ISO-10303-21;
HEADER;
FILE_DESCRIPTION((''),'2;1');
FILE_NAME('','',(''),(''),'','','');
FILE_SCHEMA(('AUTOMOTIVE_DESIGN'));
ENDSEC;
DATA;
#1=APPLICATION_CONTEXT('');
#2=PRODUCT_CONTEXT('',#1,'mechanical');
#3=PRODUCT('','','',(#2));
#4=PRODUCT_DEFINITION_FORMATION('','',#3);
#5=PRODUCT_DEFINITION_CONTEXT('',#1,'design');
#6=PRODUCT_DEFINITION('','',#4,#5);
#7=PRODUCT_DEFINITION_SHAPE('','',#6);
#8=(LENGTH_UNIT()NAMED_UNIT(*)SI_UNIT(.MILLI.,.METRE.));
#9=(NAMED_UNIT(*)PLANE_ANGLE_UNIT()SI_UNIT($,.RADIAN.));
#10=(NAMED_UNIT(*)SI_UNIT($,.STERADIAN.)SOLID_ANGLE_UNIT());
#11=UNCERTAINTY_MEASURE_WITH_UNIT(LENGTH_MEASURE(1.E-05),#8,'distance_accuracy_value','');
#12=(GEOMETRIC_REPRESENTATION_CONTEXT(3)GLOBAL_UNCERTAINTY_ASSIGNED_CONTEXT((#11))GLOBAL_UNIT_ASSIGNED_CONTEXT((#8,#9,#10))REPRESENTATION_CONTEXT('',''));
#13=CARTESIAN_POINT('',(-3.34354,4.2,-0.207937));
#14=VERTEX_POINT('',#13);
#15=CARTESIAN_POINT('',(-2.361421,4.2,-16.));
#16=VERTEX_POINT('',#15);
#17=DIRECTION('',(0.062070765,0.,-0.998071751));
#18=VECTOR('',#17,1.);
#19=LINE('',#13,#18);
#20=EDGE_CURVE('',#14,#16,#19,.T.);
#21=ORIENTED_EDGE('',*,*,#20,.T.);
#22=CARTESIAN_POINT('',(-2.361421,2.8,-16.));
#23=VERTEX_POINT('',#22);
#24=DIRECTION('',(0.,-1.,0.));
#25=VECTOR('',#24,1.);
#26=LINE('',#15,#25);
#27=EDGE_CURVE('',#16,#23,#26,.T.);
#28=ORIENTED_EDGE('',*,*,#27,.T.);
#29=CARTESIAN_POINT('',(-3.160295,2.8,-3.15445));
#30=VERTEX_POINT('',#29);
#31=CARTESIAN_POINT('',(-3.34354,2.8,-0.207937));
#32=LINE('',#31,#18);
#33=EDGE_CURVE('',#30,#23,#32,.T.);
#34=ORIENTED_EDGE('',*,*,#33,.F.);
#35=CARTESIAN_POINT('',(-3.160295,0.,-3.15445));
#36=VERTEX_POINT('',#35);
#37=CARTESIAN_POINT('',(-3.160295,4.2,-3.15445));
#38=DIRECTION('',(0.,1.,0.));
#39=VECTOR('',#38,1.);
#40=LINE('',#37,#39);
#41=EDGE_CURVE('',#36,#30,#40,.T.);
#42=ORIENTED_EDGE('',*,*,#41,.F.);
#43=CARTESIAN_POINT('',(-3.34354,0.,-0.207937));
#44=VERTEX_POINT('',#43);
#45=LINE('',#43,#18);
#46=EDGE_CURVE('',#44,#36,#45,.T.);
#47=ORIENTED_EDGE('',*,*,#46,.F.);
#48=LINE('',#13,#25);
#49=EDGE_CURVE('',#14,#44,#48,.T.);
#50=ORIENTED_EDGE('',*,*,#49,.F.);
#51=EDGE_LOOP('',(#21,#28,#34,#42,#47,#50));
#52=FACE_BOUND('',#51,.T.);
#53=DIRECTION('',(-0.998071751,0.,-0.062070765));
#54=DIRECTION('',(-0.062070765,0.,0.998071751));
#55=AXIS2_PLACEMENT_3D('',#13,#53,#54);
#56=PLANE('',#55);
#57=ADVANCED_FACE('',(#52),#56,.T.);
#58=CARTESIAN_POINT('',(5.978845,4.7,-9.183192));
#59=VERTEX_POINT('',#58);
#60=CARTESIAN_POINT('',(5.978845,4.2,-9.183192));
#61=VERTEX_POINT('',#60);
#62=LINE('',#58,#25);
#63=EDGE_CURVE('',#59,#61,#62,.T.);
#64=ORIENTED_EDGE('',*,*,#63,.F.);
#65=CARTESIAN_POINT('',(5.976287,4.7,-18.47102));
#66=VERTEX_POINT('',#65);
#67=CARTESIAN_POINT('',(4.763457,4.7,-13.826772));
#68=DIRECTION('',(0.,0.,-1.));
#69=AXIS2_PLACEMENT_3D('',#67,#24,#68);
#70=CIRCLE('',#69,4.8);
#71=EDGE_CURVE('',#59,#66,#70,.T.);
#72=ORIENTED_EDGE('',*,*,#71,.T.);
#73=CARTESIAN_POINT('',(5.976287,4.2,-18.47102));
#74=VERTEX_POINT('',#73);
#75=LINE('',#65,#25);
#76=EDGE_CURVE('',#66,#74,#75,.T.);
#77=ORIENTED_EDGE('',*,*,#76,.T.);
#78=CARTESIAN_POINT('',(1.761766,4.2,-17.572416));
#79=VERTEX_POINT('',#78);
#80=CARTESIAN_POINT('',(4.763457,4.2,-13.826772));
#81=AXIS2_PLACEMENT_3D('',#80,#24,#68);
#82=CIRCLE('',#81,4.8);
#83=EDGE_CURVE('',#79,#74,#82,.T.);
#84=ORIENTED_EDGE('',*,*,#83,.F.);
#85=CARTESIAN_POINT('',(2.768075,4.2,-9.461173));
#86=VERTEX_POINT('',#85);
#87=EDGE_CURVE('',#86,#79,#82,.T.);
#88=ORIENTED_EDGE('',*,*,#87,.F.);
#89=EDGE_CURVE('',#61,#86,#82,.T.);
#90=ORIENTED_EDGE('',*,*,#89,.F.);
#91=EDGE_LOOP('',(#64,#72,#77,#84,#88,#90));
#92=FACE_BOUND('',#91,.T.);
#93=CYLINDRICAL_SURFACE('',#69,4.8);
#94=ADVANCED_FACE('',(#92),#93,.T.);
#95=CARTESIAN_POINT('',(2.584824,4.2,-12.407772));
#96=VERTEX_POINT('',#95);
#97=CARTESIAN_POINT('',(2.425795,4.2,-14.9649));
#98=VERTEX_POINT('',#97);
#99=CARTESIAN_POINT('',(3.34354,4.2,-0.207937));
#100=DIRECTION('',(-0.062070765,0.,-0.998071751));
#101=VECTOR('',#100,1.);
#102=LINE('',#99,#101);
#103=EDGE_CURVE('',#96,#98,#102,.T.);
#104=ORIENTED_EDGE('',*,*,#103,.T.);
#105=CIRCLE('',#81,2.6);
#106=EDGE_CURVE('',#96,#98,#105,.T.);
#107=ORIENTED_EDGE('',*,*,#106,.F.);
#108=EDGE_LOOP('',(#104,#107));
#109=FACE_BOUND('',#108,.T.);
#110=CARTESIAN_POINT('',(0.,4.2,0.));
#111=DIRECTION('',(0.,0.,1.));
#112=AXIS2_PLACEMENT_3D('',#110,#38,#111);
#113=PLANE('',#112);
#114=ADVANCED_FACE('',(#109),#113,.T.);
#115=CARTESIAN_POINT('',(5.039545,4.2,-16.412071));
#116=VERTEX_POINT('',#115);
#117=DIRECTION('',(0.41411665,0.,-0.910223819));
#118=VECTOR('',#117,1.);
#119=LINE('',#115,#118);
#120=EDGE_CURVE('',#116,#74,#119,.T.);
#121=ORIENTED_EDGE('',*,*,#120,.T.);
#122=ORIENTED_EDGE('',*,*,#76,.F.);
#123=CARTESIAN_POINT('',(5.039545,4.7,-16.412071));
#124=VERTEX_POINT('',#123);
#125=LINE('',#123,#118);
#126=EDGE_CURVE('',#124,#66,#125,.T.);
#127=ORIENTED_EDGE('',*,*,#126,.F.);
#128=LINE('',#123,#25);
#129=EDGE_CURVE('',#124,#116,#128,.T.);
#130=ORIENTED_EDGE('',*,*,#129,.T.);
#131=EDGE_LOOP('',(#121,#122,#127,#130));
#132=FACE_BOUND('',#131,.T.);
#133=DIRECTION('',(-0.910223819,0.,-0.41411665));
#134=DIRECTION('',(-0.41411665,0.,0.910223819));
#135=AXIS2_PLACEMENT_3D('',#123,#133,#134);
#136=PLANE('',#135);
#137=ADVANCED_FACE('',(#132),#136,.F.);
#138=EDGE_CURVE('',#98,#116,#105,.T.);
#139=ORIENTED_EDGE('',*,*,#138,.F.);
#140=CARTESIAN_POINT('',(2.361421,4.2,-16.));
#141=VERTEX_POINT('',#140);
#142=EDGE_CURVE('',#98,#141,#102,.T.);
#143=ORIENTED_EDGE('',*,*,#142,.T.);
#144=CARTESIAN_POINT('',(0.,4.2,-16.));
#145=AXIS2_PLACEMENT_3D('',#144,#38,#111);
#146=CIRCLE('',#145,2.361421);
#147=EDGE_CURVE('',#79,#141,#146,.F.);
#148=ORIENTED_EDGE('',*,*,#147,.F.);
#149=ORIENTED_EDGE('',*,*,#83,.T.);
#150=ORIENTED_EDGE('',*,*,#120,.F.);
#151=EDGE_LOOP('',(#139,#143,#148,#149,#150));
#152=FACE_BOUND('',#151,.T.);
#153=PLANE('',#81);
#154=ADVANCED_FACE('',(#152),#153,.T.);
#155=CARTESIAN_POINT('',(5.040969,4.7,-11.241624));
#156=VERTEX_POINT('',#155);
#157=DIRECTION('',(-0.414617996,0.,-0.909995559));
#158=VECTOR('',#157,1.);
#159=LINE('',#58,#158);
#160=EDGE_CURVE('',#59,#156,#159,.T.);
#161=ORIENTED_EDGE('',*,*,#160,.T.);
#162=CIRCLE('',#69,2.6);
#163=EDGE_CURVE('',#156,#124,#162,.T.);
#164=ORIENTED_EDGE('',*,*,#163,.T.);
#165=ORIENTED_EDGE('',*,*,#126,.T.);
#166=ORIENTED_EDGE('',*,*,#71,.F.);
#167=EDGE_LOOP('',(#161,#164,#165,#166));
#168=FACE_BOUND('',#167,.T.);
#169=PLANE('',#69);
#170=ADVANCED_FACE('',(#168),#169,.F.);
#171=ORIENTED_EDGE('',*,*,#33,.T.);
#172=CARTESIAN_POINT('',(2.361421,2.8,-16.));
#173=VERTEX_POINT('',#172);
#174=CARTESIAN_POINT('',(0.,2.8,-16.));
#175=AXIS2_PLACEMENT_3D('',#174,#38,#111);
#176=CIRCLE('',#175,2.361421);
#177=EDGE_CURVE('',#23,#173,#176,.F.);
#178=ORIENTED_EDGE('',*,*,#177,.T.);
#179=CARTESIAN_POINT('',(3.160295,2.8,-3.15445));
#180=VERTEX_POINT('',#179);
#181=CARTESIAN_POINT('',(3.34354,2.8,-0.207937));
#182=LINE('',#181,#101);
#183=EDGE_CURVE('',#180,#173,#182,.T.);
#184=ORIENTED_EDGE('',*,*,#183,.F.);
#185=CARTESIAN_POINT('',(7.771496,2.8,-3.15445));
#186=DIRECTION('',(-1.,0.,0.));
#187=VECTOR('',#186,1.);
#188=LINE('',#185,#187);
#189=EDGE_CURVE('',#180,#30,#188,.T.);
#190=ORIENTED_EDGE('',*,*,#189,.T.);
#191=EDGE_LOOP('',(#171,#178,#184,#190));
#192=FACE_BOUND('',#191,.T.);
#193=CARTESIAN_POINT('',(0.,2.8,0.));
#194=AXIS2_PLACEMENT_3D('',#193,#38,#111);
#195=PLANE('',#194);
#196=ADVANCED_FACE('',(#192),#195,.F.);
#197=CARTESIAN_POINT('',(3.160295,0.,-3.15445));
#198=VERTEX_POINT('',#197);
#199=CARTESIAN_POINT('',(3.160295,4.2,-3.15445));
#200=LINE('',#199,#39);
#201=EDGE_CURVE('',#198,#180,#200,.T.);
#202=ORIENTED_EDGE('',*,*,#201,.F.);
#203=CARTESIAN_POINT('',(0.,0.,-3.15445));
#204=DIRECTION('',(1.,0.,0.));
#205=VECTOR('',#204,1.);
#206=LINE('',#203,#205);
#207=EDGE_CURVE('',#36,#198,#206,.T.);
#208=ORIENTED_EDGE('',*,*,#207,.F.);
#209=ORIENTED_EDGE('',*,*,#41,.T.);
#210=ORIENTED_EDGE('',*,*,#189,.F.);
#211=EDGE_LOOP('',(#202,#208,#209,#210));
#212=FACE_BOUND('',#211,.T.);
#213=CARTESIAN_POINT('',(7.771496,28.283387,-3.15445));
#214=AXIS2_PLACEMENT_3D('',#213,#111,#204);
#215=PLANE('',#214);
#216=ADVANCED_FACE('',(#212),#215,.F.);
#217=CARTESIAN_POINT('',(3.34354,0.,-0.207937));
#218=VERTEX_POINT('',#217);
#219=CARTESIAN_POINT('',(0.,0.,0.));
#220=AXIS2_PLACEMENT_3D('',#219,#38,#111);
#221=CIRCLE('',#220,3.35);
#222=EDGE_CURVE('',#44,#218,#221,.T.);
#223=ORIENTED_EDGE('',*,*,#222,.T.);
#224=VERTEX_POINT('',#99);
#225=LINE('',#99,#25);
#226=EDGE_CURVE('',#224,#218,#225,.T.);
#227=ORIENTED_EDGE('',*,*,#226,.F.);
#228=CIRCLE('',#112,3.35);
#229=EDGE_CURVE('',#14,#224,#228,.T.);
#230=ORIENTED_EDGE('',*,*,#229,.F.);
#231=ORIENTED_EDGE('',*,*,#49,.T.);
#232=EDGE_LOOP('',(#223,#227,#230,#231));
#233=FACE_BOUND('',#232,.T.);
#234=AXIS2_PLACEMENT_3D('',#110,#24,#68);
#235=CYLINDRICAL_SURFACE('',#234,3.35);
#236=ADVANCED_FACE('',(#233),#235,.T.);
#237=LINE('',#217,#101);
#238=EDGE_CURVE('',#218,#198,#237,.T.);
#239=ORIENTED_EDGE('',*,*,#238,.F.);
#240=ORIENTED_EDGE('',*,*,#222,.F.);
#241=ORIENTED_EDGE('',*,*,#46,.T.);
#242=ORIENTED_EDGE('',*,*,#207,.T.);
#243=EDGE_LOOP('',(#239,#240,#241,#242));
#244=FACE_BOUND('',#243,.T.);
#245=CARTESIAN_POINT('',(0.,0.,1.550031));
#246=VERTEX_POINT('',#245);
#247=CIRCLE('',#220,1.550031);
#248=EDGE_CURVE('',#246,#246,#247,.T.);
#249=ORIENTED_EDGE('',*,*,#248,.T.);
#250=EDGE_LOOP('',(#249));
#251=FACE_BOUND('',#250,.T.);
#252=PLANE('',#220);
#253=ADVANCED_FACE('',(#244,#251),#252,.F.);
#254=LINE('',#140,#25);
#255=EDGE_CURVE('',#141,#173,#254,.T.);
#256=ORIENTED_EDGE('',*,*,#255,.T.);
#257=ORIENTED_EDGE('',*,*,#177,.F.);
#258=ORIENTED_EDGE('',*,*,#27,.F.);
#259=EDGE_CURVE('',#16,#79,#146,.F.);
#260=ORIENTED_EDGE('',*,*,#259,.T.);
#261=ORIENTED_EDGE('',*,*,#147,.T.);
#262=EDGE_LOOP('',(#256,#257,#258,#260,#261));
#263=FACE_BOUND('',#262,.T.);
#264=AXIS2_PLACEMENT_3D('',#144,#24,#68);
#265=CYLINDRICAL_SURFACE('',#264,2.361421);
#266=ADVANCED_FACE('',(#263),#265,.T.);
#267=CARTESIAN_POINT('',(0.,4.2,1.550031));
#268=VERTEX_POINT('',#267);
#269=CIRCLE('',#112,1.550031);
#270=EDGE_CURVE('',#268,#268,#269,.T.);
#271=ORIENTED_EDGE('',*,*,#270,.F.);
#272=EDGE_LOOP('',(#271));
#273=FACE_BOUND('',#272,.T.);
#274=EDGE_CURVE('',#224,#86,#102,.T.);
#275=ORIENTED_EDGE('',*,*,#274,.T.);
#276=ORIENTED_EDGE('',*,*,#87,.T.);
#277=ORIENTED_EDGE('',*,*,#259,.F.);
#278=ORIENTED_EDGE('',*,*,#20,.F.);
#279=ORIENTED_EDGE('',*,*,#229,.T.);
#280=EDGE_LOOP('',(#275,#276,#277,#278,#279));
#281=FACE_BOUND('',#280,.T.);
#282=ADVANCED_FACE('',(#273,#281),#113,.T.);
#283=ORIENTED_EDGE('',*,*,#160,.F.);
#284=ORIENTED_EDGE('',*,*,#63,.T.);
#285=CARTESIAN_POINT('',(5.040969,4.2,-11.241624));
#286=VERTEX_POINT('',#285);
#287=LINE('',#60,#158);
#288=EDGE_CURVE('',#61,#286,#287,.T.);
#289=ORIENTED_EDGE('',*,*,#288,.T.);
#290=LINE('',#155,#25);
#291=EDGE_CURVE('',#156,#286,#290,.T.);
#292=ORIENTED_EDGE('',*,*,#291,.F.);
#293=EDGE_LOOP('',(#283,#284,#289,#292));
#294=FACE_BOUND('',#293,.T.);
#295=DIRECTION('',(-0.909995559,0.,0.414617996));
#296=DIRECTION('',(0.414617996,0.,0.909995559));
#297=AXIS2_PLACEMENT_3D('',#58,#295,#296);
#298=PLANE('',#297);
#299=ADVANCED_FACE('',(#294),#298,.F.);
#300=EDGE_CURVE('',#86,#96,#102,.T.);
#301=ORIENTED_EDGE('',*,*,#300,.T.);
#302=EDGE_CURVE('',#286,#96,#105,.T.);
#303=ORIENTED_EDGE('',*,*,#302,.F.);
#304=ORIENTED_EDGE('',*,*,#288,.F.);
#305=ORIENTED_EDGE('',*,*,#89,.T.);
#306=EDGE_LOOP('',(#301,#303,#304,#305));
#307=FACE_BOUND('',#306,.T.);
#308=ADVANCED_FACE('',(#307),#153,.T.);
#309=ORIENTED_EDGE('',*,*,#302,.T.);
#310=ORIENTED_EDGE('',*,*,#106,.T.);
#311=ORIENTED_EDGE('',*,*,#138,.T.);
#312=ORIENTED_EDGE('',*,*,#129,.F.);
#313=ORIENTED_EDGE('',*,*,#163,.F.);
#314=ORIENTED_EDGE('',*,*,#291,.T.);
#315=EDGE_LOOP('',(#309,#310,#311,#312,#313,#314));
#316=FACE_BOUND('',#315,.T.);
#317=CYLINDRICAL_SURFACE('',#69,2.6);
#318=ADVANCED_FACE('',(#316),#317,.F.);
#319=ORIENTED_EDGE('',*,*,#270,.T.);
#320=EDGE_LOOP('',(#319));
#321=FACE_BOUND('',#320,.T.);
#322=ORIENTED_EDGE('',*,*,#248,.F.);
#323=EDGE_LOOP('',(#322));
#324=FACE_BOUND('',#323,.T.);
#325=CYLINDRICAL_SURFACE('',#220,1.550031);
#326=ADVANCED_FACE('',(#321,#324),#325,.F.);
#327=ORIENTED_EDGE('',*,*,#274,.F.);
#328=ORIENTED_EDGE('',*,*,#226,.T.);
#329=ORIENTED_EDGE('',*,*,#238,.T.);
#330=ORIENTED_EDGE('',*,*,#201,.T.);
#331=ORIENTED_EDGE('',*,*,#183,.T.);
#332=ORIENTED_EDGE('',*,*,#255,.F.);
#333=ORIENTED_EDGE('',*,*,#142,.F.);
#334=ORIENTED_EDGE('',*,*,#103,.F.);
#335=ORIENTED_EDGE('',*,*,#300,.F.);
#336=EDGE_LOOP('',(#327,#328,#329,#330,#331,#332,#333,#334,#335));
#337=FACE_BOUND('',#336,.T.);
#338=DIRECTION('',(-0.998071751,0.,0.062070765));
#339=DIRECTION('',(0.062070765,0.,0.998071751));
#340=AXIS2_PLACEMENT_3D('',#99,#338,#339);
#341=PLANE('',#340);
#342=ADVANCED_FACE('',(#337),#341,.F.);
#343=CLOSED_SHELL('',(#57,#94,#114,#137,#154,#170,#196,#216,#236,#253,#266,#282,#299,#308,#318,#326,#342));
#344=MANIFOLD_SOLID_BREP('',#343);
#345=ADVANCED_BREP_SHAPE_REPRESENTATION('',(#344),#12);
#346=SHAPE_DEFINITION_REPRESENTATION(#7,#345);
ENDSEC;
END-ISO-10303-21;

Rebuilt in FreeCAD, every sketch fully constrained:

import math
import FreeCAD as App
import Part
import Sketcher
Q = App.Units.Quantity

doc = App.newDocument("Part")
body = doc.addObject("PartDesign::Body", "Body")

# Sketch on XZ plane
sketch1 = body.newObject("Sketcher::SketchObject", "Sketch")
sketch1.AttachmentSupport = (doc.getObject("XZ_Plane"), [""])
sketch1.MapMode = "FlatFace"
sketch1.addGeometry([
    Part.LineSegment(App.Vector(-2.4, -16, 0), App.Vector(-3.3, -0.2, 0)),
    Part.ArcOfCircle(Part.Circle(App.Vector(0, 0, 0), App.Vector(0, 0, 1), 3.4), math.radians(-4), math.radians(184)),
    Part.LineSegment(App.Vector(3.3, -0.2, 0), App.Vector(2.4, -16, 0)),
    Part.ArcOfCircle(Part.Circle(App.Vector(0, -16, 0), App.Vector(0, 0, 1), 2.4), math.radians(180), math.radians(360)),
], False)
sketch1.addConstraint([
    Sketcher.Constraint("Tangent", 0, 2, 1, 2),
    Sketcher.Constraint("Tangent", 1, 1, 2, 1),
    Sketcher.Constraint("Coincident", 2, 2, 3, 2),
    Sketcher.Constraint("Coincident", 3, 1, 0, 1),
    Sketcher.Constraint("Coincident", 1, 3, -1, 1),
    Sketcher.Constraint("Symmetric", 2, 2, 3, 1, -2),
    Sketcher.Constraint("Horizontal", 3, 3, 2, 2),
    Sketcher.Constraint("Radius", 1, Q("3.35 mm")),
    Sketcher.Constraint("DistanceY", 3, 3, -1, 1, Q("16 mm")),
    Sketcher.Constraint("Radius", 3, Q("2.361421 mm")),
])
pad1 = body.newObject("PartDesign::Pad", "Pad")
pad1.Profile = sketch1
pad1.Length = 4.2
pad1.Reversed = True

# Sketch on XZ plane
sketch2 = body.newObject("Sketcher::SketchObject", "Sketch001")
sketch2.AttachmentSupport = (doc.getObject("XZ_Plane"), [""])
sketch2.MapMode = "FlatFace"
sketch2.AttachmentOffset = App.Placement(App.Vector(0, 0, -4.2), App.Rotation())
sketch2.addGeometry(Part.Circle(App.Vector(0, 0, 0), App.Vector(0, 0, 1), 1.6), False)
sketch2.addConstraint([
    Sketcher.Constraint("Coincident", 0, 3, -1, 1),
    Sketcher.Constraint("Diameter", 0, Q("3.100062 mm")),
])
pocket1 = body.newObject("PartDesign::Pocket", "Pocket")
pocket1.Profile = sketch2
pocket1.Length = 4.2
pocket1.Reversed = True

# Sketch on XZ plane
sketch3 = body.newObject("Sketcher::SketchObject", "Sketch002")
sketch3.AttachmentSupport = (doc.getObject("XZ_Plane"), [""])
sketch3.MapMode = "FlatFace"
sketch3.AttachmentOffset = App.Placement(App.Vector(0, 0, -4.2), App.Rotation())
sketch3.addGeometry([
    Part.LineSegment(App.Vector(6, -9.2, 0), App.Vector(5, -11.2, 0)),
    Part.ArcOfCircle(Part.Circle(App.Vector(4.8, -13.8, 0), App.Vector(0, 0, 1), 2.6), math.radians(84), math.radians(276)),
    Part.LineSegment(App.Vector(5, -16.4, 0), App.Vector(6, -18.5, 0)),
    Part.ArcOfCircle(Part.Circle(App.Vector(4.8, -13.8, 0), App.Vector(0, 0, 1), 4.8), math.radians(75), math.radians(285)),
], False)
sketch3.addConstraint([
    Sketcher.Constraint("Coincident", 0, 2, 1, 1),
    Sketcher.Constraint("Coincident", 1, 2, 2, 1),
    Sketcher.Constraint("Coincident", 2, 2, 3, 2),
    Sketcher.Constraint("Coincident", 3, 1, 0, 1),
    Sketcher.Constraint("Coincident", 3, 3, 1, 3),
    Sketcher.Constraint("Equal", 0, 2),
    Sketcher.Constraint("Radius", 1, Q("2.6 mm")),
    Sketcher.Constraint("Radius", 3, Q("4.8 mm")),
    Sketcher.Constraint("DistanceY", 1, 2, 1, 3, Q("2.5853 mm")),
    Sketcher.Constraint("DistanceX", 1, 2, 3, 1, Q("0.9393 mm")),
    Sketcher.Constraint("DistanceY", 1, 3, -1, 1, Q("13.826772 mm")),
    Sketcher.Constraint("DistanceX", -1, 1, 0, 2, Q("5.040969 mm")),
    Sketcher.Constraint("DistanceY", 2, 2, -1, 1, Q("18.47102 mm")),
])
pad2 = body.newObject("PartDesign::Pad", "Pad001")
pad2.Profile = sketch3
pad2.Length = 0.5
pad2.Reversed = True

# Sketch on XZ plane
sketch4 = body.newObject("Sketcher::SketchObject", "Sketch003")
sketch4.AttachmentSupport = (doc.getObject("XZ_Plane"), [""])
sketch4.MapMode = "FlatFace"
sketch4.addGeometry([
    Part.LineSegment(App.Vector(8, -22, 0), App.Vector(8, -3, 0)),
    Part.LineSegment(App.Vector(8, -3, 0), App.Vector(-7, -3, 0)),
    Part.LineSegment(App.Vector(-7, -3, 0), App.Vector(-7, -22, 0)),
    Part.LineSegment(App.Vector(-7, -22, 0), App.Vector(8, -22, 0)),
], False)
sketch4.addConstraint([
    Sketcher.Constraint("Coincident", 0, 2, 1, 1),
    Sketcher.Constraint("Coincident", 1, 2, 2, 1),
    Sketcher.Constraint("Coincident", 2, 2, 3, 1),
    Sketcher.Constraint("Coincident", 3, 2, 0, 1),
    Sketcher.Constraint("Vertical", 0),
    Sketcher.Constraint("Horizontal", 1),
    Sketcher.Constraint("Vertical", 2),
    Sketcher.Constraint("Horizontal", 3),
    Sketcher.Constraint("DistanceX", 1, 2, -1, 1, Q("7.2429 mm")),
    Sketcher.Constraint("DistanceX", 1, 2, 1, 1, Q("15.014396 mm")),
    Sketcher.Constraint("DistanceY", 0, 1, 0, 2, Q("18.830227 mm")),
    Sketcher.Constraint("DistanceY", 0, 2, -1, 1, Q("3.15445 mm")),
])
pocket2 = body.newObject("PartDesign::Pocket", "Pocket001")
pocket2.Profile = sketch4
pocket2.Length = 2.8

doc.recompute()
